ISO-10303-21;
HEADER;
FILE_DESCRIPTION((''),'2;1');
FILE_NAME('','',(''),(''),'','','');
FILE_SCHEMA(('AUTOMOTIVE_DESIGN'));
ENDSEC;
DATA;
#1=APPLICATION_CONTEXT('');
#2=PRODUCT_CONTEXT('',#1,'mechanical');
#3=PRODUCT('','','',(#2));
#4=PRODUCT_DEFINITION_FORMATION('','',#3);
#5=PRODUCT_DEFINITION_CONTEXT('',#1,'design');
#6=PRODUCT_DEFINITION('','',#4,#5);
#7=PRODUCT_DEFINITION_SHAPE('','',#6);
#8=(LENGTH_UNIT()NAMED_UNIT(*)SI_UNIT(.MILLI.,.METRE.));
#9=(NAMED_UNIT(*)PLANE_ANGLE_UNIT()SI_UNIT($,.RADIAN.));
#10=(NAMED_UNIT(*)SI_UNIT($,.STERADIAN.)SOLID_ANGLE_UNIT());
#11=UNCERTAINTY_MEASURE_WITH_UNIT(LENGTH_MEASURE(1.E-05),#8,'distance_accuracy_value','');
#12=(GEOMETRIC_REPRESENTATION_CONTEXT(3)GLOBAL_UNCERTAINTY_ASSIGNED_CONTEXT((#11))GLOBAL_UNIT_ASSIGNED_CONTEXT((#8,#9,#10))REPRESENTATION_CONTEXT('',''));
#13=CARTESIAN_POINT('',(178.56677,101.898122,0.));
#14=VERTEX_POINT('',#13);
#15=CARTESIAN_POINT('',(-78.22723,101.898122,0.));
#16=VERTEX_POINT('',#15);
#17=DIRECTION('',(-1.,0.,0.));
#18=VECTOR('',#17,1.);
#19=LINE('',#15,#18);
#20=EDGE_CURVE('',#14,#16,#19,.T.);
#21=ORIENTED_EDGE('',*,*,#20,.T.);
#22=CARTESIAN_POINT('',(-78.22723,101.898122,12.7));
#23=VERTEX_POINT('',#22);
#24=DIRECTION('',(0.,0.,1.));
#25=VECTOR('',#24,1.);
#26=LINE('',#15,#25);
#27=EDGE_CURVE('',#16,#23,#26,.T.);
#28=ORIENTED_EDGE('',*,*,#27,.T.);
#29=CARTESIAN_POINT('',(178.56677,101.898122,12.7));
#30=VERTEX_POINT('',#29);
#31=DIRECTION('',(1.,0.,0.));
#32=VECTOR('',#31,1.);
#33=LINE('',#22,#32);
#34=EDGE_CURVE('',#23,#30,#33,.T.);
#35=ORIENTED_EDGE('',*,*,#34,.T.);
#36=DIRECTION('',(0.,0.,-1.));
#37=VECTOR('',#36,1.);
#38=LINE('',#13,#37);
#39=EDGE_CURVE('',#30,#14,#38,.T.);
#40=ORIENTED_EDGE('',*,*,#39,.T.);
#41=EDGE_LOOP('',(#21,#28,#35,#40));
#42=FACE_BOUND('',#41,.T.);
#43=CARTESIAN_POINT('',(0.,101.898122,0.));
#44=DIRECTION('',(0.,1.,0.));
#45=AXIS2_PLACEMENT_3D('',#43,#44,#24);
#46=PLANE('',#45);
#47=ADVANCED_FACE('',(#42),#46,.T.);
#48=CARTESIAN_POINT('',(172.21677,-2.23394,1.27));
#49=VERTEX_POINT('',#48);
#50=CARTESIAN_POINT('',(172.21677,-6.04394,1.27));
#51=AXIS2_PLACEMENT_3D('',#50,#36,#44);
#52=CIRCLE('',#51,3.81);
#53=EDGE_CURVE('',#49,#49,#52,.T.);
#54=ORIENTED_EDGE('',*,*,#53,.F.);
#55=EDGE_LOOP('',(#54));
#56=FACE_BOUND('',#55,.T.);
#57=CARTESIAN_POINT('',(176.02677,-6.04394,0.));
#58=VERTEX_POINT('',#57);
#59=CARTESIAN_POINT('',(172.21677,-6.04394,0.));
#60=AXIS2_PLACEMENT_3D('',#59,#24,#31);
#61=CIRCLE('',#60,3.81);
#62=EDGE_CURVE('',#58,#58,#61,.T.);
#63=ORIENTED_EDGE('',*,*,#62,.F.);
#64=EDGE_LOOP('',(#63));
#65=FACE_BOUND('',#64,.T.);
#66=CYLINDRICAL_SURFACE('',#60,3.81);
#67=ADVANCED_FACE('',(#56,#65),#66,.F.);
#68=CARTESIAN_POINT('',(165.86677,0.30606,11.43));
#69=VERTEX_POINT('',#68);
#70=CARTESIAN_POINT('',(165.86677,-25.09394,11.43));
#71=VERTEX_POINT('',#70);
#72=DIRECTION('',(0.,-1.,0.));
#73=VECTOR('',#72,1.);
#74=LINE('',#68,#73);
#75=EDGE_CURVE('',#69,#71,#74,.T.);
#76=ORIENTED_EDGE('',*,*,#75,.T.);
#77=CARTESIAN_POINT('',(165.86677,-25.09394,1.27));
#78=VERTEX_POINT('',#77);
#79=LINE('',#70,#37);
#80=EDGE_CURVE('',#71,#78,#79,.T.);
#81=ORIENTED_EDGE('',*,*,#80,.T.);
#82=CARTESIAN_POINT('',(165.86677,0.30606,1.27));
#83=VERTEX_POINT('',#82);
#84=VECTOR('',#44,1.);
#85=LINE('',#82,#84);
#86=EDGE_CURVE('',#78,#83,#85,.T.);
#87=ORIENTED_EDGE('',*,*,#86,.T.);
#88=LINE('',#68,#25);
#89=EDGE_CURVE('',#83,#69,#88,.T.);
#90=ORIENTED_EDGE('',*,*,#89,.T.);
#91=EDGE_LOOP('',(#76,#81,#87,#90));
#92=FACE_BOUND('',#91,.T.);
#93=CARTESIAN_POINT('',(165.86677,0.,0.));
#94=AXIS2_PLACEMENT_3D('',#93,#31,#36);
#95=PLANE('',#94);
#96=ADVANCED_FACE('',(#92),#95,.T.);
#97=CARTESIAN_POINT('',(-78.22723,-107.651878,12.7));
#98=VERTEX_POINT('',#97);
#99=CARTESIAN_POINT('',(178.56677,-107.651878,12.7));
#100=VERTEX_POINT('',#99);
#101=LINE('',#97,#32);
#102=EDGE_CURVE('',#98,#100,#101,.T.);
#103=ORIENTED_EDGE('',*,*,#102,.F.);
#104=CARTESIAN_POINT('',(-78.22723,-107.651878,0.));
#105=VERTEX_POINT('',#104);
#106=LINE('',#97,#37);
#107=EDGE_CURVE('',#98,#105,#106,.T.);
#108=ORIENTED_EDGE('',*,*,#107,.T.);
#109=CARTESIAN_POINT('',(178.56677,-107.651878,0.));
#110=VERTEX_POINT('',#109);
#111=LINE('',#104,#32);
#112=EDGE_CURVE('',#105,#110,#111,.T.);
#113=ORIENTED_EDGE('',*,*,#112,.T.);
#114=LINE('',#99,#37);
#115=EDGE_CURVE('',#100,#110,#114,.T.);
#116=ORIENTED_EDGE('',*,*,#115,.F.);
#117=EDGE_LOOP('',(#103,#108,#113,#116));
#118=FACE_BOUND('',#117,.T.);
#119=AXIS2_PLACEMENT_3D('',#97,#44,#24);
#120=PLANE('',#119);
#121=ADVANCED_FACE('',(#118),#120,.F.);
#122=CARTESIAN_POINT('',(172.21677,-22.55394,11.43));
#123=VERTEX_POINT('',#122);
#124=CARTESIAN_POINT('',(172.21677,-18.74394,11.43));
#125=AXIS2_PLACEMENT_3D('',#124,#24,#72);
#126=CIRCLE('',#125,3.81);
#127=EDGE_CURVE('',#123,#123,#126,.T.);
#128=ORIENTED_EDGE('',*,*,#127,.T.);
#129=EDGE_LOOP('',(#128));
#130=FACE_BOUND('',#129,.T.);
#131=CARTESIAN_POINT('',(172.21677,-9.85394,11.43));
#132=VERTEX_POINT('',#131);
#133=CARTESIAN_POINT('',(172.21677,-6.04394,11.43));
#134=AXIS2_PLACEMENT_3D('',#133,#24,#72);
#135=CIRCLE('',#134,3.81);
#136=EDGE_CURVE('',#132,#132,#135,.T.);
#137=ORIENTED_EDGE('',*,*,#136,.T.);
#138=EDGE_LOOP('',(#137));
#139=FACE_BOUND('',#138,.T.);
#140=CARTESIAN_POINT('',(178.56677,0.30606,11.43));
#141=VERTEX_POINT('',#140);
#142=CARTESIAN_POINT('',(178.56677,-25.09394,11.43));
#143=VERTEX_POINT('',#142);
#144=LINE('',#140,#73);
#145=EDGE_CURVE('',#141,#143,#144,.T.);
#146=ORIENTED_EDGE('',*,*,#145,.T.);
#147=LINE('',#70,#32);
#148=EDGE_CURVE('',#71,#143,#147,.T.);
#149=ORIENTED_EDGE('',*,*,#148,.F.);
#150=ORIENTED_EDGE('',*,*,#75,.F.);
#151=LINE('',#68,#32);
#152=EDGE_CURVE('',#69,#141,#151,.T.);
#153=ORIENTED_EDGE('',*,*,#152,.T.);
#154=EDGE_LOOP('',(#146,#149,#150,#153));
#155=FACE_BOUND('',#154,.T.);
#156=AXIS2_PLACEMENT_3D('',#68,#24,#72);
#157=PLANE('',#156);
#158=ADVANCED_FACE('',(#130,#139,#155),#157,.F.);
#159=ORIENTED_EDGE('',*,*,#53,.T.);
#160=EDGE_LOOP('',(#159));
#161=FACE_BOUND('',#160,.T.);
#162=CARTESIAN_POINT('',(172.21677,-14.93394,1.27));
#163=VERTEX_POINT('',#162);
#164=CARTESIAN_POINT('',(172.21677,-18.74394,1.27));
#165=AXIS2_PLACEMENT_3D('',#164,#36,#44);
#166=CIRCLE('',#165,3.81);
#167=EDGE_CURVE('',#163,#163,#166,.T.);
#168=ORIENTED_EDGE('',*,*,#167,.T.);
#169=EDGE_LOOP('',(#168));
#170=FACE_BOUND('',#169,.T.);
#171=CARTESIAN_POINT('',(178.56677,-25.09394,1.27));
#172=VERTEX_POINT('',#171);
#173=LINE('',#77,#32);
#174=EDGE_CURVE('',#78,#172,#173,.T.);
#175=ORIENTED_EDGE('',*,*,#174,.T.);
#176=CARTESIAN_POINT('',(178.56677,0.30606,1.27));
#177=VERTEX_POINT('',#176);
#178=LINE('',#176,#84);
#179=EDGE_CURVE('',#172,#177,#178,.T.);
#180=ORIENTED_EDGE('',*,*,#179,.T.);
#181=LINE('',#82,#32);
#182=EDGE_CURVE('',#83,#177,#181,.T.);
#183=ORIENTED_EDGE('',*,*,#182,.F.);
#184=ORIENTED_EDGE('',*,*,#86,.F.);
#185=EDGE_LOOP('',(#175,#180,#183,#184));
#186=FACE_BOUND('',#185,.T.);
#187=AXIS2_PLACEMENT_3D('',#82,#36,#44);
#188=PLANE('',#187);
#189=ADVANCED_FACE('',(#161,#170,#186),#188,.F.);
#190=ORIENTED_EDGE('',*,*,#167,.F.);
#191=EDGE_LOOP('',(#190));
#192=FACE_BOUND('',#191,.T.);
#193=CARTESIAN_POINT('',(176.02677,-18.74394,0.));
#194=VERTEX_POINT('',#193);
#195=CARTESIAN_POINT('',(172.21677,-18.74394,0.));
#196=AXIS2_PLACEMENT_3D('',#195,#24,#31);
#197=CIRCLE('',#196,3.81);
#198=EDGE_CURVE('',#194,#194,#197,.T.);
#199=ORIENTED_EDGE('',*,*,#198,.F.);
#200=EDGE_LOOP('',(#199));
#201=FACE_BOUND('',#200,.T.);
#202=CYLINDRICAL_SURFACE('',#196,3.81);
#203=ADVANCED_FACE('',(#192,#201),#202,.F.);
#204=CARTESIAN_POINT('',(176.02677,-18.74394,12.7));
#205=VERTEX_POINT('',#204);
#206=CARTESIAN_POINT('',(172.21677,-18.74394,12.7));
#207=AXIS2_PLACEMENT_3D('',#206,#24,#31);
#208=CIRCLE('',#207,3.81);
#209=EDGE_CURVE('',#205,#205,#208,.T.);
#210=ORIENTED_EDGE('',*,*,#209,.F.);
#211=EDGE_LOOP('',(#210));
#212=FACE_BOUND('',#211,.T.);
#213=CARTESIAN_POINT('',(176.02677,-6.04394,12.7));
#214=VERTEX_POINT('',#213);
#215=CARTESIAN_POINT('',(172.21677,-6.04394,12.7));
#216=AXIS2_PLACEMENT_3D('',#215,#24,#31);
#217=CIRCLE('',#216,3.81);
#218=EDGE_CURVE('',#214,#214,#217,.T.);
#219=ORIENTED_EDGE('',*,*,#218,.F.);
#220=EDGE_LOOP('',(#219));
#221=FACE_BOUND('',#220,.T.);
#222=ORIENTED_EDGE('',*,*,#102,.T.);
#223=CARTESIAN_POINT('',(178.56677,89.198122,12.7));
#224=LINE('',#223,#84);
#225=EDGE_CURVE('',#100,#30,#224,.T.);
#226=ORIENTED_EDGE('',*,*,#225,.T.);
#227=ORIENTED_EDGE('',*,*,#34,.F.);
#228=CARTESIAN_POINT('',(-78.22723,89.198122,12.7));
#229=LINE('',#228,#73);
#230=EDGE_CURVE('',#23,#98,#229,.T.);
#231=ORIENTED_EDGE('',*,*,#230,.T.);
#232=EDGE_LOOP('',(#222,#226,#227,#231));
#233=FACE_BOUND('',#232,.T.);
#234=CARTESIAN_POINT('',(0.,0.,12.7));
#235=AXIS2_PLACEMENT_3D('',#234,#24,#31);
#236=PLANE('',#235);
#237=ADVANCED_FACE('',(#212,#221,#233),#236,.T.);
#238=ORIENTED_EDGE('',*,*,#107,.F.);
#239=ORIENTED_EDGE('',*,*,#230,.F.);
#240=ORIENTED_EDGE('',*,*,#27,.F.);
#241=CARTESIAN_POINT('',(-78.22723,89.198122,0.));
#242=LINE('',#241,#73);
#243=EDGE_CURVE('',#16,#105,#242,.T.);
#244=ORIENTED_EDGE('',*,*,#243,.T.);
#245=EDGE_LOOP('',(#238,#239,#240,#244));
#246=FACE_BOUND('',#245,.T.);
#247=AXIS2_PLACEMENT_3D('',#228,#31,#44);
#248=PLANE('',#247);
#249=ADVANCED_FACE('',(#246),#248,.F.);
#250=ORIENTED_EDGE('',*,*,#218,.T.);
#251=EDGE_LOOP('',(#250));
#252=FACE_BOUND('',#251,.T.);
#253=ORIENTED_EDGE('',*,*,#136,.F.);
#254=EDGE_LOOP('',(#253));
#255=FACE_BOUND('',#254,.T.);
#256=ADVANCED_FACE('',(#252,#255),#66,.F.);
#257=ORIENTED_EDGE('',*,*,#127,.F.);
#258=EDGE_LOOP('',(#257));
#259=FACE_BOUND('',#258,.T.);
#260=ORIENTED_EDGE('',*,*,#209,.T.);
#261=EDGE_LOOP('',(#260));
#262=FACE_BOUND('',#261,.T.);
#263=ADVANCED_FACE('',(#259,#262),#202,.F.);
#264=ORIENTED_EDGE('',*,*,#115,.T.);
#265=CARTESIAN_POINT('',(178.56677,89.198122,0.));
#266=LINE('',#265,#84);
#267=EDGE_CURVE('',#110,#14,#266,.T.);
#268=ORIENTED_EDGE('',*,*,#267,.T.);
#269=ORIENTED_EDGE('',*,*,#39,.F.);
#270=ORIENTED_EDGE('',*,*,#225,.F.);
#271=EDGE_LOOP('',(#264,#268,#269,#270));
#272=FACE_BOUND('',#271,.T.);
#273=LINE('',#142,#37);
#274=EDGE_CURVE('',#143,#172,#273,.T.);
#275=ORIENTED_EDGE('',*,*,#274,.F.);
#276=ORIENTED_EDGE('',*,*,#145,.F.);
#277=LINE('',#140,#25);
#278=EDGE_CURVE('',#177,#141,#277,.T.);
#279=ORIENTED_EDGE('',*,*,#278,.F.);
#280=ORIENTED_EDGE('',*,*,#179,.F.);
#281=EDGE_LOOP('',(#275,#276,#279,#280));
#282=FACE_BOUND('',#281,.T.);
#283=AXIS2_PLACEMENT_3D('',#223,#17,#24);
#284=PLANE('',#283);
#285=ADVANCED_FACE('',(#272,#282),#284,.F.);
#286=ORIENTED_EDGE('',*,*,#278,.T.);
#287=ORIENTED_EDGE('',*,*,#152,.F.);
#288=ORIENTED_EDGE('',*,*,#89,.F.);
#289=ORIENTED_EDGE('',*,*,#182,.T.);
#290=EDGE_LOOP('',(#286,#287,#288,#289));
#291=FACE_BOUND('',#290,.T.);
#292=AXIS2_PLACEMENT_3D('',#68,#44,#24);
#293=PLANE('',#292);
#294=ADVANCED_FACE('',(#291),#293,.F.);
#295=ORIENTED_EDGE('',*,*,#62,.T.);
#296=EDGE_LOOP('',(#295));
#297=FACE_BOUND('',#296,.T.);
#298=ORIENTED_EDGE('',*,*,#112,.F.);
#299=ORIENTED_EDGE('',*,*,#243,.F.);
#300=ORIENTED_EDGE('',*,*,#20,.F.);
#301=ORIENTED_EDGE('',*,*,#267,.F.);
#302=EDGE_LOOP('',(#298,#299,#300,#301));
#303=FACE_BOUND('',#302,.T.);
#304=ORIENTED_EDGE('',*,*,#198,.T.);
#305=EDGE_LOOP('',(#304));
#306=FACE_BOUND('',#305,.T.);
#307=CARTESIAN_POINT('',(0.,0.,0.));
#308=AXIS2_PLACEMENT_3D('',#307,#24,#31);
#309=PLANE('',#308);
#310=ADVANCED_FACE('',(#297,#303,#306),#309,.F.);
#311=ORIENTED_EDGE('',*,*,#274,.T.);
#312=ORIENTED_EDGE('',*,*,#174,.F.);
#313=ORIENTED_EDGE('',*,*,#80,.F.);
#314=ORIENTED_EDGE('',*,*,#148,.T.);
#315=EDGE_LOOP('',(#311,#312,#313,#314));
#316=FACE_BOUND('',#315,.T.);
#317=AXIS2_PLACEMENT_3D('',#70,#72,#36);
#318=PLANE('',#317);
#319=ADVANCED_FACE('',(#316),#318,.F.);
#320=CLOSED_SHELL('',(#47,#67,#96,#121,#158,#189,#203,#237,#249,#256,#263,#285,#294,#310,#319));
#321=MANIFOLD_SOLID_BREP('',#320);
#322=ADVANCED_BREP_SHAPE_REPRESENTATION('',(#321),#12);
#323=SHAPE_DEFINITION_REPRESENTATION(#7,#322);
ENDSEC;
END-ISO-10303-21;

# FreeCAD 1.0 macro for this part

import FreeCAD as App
import Part
import Sketcher
from FreeCAD import Vector
Q = App.Units.Quantity

doc = App.newDocument("Part")
body = doc.addObject("PartDesign::Body", "Body")

# Sketch on XY plane
sketch1 = body.newObject("Sketcher::SketchObject", "Sketch")
sketch1.AttachmentSupport = (doc.getObject("XY_Plane"), [""])
sketch1.MapMode = "FlatFace"
sketch1.addGeometry(Part.LineSegment(Vector(-78, 89, 0), Vector(-78, -108, 0)), False)
sketch1.addGeometry(Part.LineSegment(Vector(-78, -108, 0), Vector(179, -108, 0)), False)
sketch1.addGeometry(Part.LineSegment(Vector(179, -108, 0), Vector(179, 89, 0)), False)
sketch1.addGeometry(Part.LineSegment(Vector(179, 89, 0), Vector(-78, 89, 0)), False)
sketch1.addConstraint(Sketcher.Constraint("Coincident", 0, 2, 1, 1))
sketch1.addConstraint(Sketcher.Constraint("Coincident", 1, 2, 2, 1))
sketch1.addConstraint(Sketcher.Constraint("Coincident", 2, 2, 3, 1))
sketch1.addConstraint(Sketcher.Constraint("Coincident", 3, 2, 0, 1))
sketch1.addConstraint(Sketcher.Constraint("Vertical", 0))
sketch1.addConstraint(Sketcher.Constraint("Horizontal", 1))
sketch1.addConstraint(Sketcher.Constraint("Vertical", 2))
sketch1.addConstraint(Sketcher.Constraint("Horizontal", 3))
sketch1.addConstraint(Sketcher.Constraint("DistanceX", 1, 1, 1, 2, Q("10.11 in")))
sketch1.addConstraint(Sketcher.Constraint("DistanceY", 0, 2, 0, 1, Q("7.75 in")))
sketch1.addConstraint(Sketcher.Constraint("DistanceX", 0, 2, -1, 1, Q("78.22723 mm")))
sketch1.addConstraint(Sketcher.Constraint("DistanceY", 0, 2, -1, 1, Q("107.651878 mm")))
pad1 = body.newObject("PartDesign::Pad", "Pad")
pad1.Profile = sketch1
pad1.Length = Q("0.5 in")

# Sketch on YZ plane
sketch2 = body.newObject("Sketcher::SketchObject", "Sketch001")
sketch2.AttachmentSupport = (doc.getObject("YZ_Plane"), [""])
sketch2.MapMode = "FlatFace"
sketch2.AttachmentOffset = App.Placement(Vector(0, 0, 178.56677), App.Rotation())
sketch2.addGeometry(Part.LineSegment(Vector(0, 11, 0), Vector(-25, 11, 0)), False)
sketch2.addGeometry(Part.LineSegment(Vector(-25, 11, 0), Vector(-25, 1, 0)), False)
sketch2.addGeometry(Part.LineSegment(Vector(-25, 1, 0), Vector(0, 1, 0)), False)
sketch2.addGeometry(Part.LineSegment(Vector(0, 1, 0), Vector(0, 11, 0)), False)
sketch2.addConstraint(Sketcher.Constraint("Coincident", 0, 2, 1, 1))
sketch2.addConstraint(Sketcher.Constraint("Coincident", 1, 2, 2, 1))
sketch2.addConstraint(Sketcher.Constraint("Coincident", 2, 2, 3, 1))
sketch2.addConstraint(Sketcher.Constraint("Coincident", 3, 2, 0, 1))
sketch2.addConstraint(Sketcher.Constraint("Horizontal", 0))
sketch2.addConstraint(Sketcher.Constraint("Vertical", 1))
sketch2.addConstraint(Sketcher.Constraint("Horizontal", 2))
sketch2.addConstraint(Sketcher.Constraint("Vertical", 3))
sketch2.addConstraint(Sketcher.Constraint("DistanceX", 0, 2, 0, 1, Q("1 in")))
sketch2.addConstraint(Sketcher.Constraint("DistanceY", 1, 2, 1, 1, Q("0.4 in")))
sketch2.addConstraint(Sketcher.Constraint("DistanceY", -1, 1, 0, 2, Q("0.45 in")))
sketch2.addConstraint(Sketcher.Constraint("DistanceX", 0, 2, -1, 1, Q("25.09394 mm")))
pocket1 = body.newObject("PartDesign::Pocket", "Pocket")
pocket1.Profile = sketch2
pocket1.Length = Q("0.5 in")

# Sketch on XY plane
sketch3 = body.newObject("Sketcher::SketchObject", "Sketch002")
sketch3.AttachmentSupport = (doc.getObject("XY_Plane"), [""])
sketch3.MapMode = "FlatFace"
sketch3.AttachmentOffset = App.Placement(Vector(0, 0, 0.5 * 25.4), App.Rotation())
sketch3.addGeometry(Part.Circle(Vector(172.2, -6, 0), Vector(0, 0, 1), 3.8), False)
sketch3.addGeometry(Part.Circle(Vector(172.2, -18.7, 0), Vector(0, 0, 1), 3.8), False)
sketch3.addConstraint(Sketcher.Constraint("Equal", 0, 1))
sketch3.addConstraint(Sketcher.Constraint("Vertical", 0, 3, 1, 3))
sketch3.addConstraint(Sketcher.Constraint("Diameter", 0, Q("0.3 in")))
sketch3.addConstraint(Sketcher.Constraint("DistanceY", 1, 3, 0, 3, Q("0.5 in")))
sketch3.addConstraint(Sketcher.Constraint("DistanceX", -1, 1, 0, 3, Q("172.21677 mm")))
sketch3.addConstraint(Sketcher.Constraint("DistanceY", 0, 3, -1, 1, Q("6.04394 mm")))
pocket2 = body.newObject("PartDesign::Pocket", "Pocket001")
pocket2.Profile = sketch3
pocket2.Length = Q("0.5 in")

# Sketch on XZ plane
sketch4 = body.newObject("Sketcher::SketchObject", "Sketch003")
sketch4.AttachmentSupport = (doc.getObject("XZ_Plane"), [""])
sketch4.MapMode = "FlatFace"
sketch4.AttachmentOffset = App.Placement(Vector(0, 0, -89.198122), App.Rotation())
sketch4.addGeometry(Part.LineSegment(Vector(-78, 0, 0), Vector(-78, 13, 0)), False)
sketch4.addGeometry(Part.LineSegment(Vector(-78, 13, 0), Vector(179, 13, 0)), False)
sketch4.addGeometry(Part.LineSegment(Vector(179, 13, 0), Vector(179, 0, 0)), False)
sketch4.addGeometry(Part.LineSegment(Vector(179, 0, 0), Vector(-78, 0, 0)), False)
sketch4.addConstraint(Sketcher.Constraint("Coincident", 0, 2, 1, 1))
sketch4.addConstraint(Sketcher.Constraint("Coincident", 1, 2, 2, 1))
sketch4.addConstraint(Sketcher.Constraint("Coincident", 2, 2, 3, 1))
sketch4.addConstraint(Sketcher.Constraint("Coincident", 3, 2, 0, 1))
sketch4.addConstraint(Sketcher.Constraint("Vertical", 0))
sketch4.addConstraint(Sketcher.Constraint("Horizontal", 1))
sketch4.addConstraint(Sketcher.Constraint("Vertical", 2))
sketch4.addConstraint(Sketcher.Constraint("Horizontal", 3))
sketch4.addConstraint(Sketcher.Constraint("PointOnObject", 2, 2, -1))
sketch4.addConstraint(Sketcher.Constraint("DistanceY", 0, 1, 0, 2, Q("0.5 in")))
sketch4.addConstraint(Sketcher.Constraint("DistanceX", 1, 1, 1, 2, Q("10.11 in")))
sketch4.addConstraint(Sketcher.Constraint("DistanceX", 0, 2, -1, 1, Q("78.22723 mm")))
pad2 = body.newObject("PartDesign::Pad", "Pad001")
pad2.Profile = sketch4
pad2.Length = Q("0.5 in")
pad2.Reversed = True

doc.recompute()
